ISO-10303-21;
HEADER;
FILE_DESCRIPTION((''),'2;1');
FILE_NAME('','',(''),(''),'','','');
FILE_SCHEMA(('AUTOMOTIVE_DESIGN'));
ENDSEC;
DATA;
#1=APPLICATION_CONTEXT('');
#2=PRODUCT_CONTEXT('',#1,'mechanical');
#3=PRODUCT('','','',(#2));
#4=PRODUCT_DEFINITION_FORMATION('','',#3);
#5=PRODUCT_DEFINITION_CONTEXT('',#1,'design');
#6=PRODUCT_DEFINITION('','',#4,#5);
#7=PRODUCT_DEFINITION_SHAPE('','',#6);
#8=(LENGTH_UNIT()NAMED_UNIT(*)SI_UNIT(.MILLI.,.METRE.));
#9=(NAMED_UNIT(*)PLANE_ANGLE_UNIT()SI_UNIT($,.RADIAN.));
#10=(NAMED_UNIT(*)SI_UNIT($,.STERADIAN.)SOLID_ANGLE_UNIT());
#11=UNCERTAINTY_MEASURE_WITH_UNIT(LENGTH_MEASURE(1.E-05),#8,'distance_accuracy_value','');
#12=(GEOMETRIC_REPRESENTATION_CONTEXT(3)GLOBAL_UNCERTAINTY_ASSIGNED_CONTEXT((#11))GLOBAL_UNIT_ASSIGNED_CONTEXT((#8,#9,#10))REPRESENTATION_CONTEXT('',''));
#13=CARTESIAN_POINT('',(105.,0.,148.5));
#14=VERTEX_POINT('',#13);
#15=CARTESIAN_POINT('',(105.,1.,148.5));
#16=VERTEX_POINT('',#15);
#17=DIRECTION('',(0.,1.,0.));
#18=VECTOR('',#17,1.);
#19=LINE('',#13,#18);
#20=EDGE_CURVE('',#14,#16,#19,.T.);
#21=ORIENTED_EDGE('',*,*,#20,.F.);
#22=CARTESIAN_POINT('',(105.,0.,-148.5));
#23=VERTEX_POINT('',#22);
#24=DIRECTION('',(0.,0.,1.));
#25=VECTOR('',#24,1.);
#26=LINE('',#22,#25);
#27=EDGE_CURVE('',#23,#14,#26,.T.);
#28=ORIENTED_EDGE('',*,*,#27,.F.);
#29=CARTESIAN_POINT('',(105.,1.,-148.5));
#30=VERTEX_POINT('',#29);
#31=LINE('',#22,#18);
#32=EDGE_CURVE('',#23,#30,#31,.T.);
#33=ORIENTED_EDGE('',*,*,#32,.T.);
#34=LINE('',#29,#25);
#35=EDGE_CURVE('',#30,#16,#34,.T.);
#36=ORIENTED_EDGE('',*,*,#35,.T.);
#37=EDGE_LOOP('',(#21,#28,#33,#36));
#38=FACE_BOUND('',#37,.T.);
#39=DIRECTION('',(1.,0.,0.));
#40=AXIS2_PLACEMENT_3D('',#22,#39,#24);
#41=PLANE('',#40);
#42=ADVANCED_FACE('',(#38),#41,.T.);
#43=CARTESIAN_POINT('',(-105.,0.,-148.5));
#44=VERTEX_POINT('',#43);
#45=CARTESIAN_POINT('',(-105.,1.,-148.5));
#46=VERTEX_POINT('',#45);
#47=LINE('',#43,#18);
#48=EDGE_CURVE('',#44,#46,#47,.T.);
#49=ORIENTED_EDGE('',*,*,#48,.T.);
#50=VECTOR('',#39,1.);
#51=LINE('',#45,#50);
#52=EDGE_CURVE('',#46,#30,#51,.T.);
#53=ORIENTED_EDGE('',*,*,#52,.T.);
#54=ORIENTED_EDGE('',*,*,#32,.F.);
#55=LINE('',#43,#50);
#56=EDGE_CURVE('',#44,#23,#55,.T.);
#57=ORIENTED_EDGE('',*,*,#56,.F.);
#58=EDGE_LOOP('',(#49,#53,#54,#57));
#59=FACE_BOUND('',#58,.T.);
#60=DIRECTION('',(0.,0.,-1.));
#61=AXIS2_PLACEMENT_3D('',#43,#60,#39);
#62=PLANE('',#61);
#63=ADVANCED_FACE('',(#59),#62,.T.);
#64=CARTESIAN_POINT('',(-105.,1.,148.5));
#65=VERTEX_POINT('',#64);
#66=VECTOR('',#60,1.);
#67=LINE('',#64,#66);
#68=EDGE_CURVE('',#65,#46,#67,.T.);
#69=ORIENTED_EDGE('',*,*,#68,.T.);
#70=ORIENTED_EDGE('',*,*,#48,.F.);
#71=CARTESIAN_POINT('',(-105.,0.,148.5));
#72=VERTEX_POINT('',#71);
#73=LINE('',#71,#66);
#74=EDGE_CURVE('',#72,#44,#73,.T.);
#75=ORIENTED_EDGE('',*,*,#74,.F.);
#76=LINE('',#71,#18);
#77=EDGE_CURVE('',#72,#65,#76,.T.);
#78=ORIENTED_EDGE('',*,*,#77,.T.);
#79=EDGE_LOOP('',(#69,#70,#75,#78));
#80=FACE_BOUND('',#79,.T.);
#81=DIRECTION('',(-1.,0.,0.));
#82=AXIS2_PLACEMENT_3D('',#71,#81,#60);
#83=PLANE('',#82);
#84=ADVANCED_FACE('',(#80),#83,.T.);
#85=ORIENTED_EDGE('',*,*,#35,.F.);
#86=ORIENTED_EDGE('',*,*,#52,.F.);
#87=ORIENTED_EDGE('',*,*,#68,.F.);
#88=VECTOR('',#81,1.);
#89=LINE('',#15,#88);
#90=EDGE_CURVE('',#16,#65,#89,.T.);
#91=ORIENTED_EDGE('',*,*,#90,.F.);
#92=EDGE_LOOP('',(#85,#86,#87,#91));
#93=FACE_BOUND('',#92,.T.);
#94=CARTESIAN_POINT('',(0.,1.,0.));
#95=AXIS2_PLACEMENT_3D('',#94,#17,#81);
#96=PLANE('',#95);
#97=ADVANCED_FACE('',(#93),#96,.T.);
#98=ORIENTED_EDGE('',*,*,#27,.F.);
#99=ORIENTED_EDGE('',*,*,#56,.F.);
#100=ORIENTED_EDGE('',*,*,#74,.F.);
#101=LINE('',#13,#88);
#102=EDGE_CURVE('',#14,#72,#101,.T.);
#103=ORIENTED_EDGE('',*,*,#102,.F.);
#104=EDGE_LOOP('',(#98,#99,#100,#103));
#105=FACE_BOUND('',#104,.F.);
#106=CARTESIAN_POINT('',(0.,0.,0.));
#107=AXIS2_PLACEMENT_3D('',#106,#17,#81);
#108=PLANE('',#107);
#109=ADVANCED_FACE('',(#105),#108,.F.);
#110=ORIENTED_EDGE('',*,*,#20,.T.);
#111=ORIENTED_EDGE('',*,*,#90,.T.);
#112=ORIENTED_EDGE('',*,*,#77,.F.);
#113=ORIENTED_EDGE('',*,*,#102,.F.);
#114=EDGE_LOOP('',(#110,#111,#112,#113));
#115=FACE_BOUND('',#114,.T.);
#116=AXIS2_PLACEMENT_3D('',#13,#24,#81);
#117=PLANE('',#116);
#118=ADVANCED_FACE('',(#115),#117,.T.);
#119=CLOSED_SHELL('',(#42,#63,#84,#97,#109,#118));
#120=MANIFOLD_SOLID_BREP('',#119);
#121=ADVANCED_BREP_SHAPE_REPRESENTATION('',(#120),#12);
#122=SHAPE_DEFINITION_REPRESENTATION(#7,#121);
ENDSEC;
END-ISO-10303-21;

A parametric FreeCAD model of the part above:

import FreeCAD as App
import Part
import Sketcher

V = App.Vector
Q = App.Units.Quantity

doc = App.newDocument("Part")
body = doc.addObject("PartDesign::Body", "Body")

sketch1 = body.newObject("Sketcher::SketchObject", "Sketch")
sketch1.AttachmentSupport = (doc.getObject("XZ_Plane"), [""])
sketch1.MapMode = "FlatFace"
sketch1.addGeometry(Part.LineSegment(V(-105, 148, 0), V(105, 148, 0)), False)
sketch1.addGeometry(Part.LineSegment(V(105, 148, 0), V(105, -148, 0)), False)
sketch1.addGeometry(Part.LineSegment(V(105, -148, 0), V(-105, -148, 0)), False)
sketch1.addGeometry(Part.LineSegment(V(-105, -148, 0), V(-105, 148, 0)), False)
sketch1.addConstraint(Sketcher.Constraint("Coincident", 0, 2, 1, 1))
sketch1.addConstraint(Sketcher.Constraint("Coincident", 1, 2, 2, 1))
sketch1.addConstraint(Sketcher.Constraint("Coincident", 2, 2, 3, 1))
sketch1.addConstraint(Sketcher.Constraint("Coincident", 3, 2, 0, 1))
sketch1.addConstraint(Sketcher.Constraint("Horizontal", 0))
sketch1.addConstraint(Sketcher.Constraint("Vertical", 1))
sketch1.addConstraint(Sketcher.Constraint("Horizontal", 2))
sketch1.addConstraint(Sketcher.Constraint("Vertical", 3))
sketch1.addConstraint(Sketcher.Constraint("Symmetric", 0, 2, 2, 2, -1, 1))
sketch1.addConstraint(Sketcher.Constraint("DistanceX", 0, 1, 0, 2, Q("210 mm")))
sketch1.addConstraint(Sketcher.Constraint("DistanceY", 1, 2, 1, 1, Q("297 mm")))
pad1 = body.newObject("PartDesign::Pad", "Pad")
pad1.Profile = sketch1
pad1.Length = 1
pad1.Reversed = True

doc.recompute()
